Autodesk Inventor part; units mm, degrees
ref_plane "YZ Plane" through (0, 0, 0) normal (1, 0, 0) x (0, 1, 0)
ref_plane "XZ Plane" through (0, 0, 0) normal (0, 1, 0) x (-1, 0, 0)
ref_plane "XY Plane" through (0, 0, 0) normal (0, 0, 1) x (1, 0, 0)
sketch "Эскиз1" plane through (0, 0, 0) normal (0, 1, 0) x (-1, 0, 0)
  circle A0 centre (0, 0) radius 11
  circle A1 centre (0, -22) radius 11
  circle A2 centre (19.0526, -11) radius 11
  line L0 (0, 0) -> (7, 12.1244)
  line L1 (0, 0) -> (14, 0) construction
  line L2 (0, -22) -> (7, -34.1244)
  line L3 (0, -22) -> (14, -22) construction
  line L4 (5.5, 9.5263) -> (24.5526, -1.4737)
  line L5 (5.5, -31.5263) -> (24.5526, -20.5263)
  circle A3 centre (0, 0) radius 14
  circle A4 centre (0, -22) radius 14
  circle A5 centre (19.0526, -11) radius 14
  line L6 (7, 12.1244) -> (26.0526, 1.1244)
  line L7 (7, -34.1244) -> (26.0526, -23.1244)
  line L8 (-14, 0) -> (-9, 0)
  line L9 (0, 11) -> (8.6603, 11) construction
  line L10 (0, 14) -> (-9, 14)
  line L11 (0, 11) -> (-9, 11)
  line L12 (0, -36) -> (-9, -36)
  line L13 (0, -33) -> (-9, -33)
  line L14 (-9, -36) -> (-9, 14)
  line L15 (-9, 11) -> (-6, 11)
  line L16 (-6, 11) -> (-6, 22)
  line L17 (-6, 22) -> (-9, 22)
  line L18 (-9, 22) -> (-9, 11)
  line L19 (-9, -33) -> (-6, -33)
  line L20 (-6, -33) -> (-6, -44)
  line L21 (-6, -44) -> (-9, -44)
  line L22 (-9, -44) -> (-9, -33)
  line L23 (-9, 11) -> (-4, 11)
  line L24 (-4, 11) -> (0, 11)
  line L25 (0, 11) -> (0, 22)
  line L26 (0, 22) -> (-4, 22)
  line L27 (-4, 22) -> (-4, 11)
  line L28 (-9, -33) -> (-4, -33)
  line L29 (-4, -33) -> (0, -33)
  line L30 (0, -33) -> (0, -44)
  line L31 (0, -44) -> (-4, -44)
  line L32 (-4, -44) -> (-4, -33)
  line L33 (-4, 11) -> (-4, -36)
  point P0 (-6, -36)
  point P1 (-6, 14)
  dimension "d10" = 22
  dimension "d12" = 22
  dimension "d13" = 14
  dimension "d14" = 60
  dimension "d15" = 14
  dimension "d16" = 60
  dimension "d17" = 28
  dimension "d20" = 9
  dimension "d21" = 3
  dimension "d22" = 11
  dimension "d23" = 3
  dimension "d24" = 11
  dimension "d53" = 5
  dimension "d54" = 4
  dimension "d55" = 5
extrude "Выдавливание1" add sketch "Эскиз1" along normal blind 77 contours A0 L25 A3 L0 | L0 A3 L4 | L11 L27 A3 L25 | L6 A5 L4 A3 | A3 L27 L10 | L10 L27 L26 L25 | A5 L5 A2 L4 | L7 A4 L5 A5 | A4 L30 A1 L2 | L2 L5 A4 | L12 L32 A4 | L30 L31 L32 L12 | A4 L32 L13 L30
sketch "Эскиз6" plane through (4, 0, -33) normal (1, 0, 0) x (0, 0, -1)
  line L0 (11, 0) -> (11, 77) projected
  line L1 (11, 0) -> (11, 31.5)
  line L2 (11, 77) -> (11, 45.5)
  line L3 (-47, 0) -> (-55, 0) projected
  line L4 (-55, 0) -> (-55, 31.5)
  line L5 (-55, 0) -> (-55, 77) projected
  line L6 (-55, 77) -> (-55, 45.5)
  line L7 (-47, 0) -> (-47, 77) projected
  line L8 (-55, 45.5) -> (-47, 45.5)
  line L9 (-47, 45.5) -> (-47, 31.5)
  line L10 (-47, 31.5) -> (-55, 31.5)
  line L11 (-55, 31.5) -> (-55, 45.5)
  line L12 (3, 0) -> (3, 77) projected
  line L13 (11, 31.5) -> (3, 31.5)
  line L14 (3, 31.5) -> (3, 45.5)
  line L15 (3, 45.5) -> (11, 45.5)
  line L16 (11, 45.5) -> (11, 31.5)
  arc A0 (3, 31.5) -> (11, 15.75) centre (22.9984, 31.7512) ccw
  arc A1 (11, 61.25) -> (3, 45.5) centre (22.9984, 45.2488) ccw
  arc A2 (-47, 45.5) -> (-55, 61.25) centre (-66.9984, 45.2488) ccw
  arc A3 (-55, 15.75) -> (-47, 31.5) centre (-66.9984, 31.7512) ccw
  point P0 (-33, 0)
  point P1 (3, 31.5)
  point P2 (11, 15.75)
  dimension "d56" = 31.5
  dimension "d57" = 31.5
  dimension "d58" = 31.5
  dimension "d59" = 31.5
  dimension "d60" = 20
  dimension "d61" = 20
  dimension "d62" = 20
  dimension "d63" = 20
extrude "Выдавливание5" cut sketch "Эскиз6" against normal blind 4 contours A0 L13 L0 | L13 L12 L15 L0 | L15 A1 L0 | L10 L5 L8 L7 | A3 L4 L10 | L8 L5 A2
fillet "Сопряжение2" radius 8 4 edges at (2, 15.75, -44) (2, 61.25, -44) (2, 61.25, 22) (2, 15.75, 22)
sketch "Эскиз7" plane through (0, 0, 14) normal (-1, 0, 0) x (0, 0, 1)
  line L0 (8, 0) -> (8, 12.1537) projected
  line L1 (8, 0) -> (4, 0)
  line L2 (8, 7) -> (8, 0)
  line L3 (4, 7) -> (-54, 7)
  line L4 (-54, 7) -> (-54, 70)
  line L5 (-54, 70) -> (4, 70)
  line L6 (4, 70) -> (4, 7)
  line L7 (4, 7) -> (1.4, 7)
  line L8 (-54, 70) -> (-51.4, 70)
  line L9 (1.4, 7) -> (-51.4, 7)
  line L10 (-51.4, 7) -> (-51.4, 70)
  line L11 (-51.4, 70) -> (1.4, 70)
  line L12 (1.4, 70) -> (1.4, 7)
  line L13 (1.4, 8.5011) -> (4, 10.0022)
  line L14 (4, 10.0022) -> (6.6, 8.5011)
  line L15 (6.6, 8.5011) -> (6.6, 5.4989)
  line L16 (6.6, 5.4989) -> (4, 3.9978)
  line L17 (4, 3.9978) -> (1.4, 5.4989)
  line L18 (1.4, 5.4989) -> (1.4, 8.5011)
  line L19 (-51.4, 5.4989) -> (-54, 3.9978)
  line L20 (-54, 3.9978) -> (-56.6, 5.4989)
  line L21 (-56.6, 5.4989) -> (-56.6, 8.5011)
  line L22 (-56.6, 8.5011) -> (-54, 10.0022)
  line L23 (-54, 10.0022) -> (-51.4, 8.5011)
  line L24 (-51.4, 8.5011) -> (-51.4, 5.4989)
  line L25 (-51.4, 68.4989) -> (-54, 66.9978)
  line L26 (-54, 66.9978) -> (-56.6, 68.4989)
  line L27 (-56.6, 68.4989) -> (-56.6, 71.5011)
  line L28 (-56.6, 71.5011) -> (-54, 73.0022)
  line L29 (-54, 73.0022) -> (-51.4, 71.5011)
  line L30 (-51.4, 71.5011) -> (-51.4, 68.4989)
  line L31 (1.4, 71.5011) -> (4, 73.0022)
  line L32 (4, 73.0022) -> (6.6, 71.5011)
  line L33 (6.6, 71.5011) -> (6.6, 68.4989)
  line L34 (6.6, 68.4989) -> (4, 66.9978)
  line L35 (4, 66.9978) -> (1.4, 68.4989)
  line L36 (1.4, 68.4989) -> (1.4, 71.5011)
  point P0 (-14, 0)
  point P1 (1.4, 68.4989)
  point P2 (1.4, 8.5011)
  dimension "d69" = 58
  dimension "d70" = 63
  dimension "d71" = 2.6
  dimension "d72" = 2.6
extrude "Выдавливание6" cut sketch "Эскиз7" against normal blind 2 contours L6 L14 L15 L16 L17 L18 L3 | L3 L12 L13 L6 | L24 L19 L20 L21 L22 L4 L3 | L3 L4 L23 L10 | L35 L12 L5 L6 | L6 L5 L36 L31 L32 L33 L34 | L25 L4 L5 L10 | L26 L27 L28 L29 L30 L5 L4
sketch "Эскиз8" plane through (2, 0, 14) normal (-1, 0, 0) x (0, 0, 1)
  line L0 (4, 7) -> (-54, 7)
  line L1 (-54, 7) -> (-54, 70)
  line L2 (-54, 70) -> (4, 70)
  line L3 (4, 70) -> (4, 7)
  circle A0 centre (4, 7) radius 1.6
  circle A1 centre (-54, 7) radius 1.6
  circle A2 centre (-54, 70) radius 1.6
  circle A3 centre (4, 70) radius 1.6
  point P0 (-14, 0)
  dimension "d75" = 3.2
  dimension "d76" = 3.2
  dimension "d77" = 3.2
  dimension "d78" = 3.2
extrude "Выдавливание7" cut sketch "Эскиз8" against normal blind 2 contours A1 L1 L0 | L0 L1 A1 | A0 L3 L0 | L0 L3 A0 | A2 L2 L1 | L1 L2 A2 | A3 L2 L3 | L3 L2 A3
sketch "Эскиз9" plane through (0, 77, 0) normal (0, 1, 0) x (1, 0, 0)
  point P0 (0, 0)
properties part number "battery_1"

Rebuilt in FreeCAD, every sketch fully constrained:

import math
import FreeCAD as App
import Part
import Sketcher

V = App.Vector
Q = App.Units.Quantity


def edges_at(feature, points):
    """Names of the edges that pass closest to the given points."""
    edges = feature.Shape.Edges
    near = lambda p: min(range(len(edges)), key=lambda i: edges[i].distToShape(Part.Vertex(*p))[0])
    return sorted({f"Edge{near(p) + 1}" for p in points})

doc = App.newDocument("Part")
body = doc.addObject("PartDesign::Body", "Body")

# Sketch on XZ plane
sketch1 = body.newObject("Sketcher::SketchObject", "Sketch")
sketch1.AttachmentSupport = (doc.getObject("XZ_Plane"), [""])
sketch1.MapMode = "FlatFace"
sketch1.addGeometry([
    Part.ArcOfCircle(Part.Circle(V(0, 0, 0), V(0, 0, 1), 11), math.radians(90), math.radians(120)),  # 0
    Part.LineSegment(V(-5.5, 9.5, 0), V(-24.6, -1.5, 0)),  # 1
    Part.ArcOfCircle(Part.Circle(V(-19.1, -11, 0), V(0, 0, 1), 11), math.radians(120), math.radians(240)),  # 2
    Part.LineSegment(V(-24.6, -20.5, 0), V(-5.5, -31.5, 0)),  # 3
    Part.ArcOfCircle(Part.Circle(V(0, -22, 0), V(0, 0, 1), 11), math.radians(-120), math.radians(-90)),  # 4
    Part.LineSegment(V(0, -33, 0), V(4, -33, 0)),  # 5
    Part.LineSegment(V(4, -33, 0), V(4, -44, 0)),  # 6
    Part.LineSegment(V(4, -44, 0), V(0, -44, 0)),  # 7
    Part.LineSegment(V(0, -44, 0), V(0, -36, 0)),  # 8
    Part.ArcOfCircle(Part.Circle(V(0, -22, 0), V(0, 0, 1), 14), math.radians(-120), math.radians(-90)),  # 9
    Part.LineSegment(V(-7, -34.1, 0), V(-26.1, -23.1, 0)),  # 10
    Part.ArcOfCircle(Part.Circle(V(-19.1, -11, 0), V(0, 0, 1), 14), math.radians(120), math.radians(240)),  # 11
    Part.LineSegment(V(-26.1, 1.1, 0), V(-7, 12.1, 0)),  # 12
    Part.ArcOfCircle(Part.Circle(V(0, 0, 0), V(0, 0, 1), 14), math.radians(90), math.radians(120)),  # 13
    Part.LineSegment(V(0, 14, 0), V(0, 22, 0)),  # 14
    Part.LineSegment(V(0, 22, 0), V(4, 22, 0)),  # 15
    Part.LineSegment(V(4, 22, 0), V(4, 11, 0)),  # 16
    Part.LineSegment(V(4, 11, 0), V(0, 11, 0)),  # 17
], False)
sketch1.addConstraint([
    Sketcher.Constraint("Tangent", 0, 2, 1, 1),
    Sketcher.Constraint("Tangent", 1, 2, 2, 1),
    Sketcher.Constraint("Tangent", 2, 2, 3, 1),
    Sketcher.Constraint("Tangent", 3, 2, 4, 1),
    Sketcher.Constraint("Tangent", 4, 2, 5, 1),
    Sketcher.Constraint("Coincident", 5, 2, 6, 1),
    Sketcher.Constraint("Coincident", 6, 2, 7, 1),
    Sketcher.Constraint("Coincident", 7, 2, 8, 1),
    Sketcher.Constraint("Coincident", 8, 2, 9, 2),
    Sketcher.Constraint("Tangent", 9, 1, 10, 1),
    Sketcher.Constraint("Tangent", 10, 2, 11, 2),
    Sketcher.Constraint("Tangent", 11, 1, 12, 1),
    Sketcher.Constraint("Tangent", 12, 2, 13, 2),
    Sketcher.Constraint("Coincident", 13, 1, 14, 1),
    Sketcher.Constraint("Coincident", 14, 2, 15, 1),
    Sketcher.Constraint("Coincident", 15, 2, 16, 1),
    Sketcher.Constraint("Coincident", 16, 2, 17, 1),
    Sketcher.Constraint("Tangent", 17, 2, 0, 1),
    Sketcher.Constraint("Horizontal", 5),
    Sketcher.Constraint("Vertical", 6),
    Sketcher.Constraint("Horizontal", 7),
    Sketcher.Constraint("Vertical", 8),
    Sketcher.Constraint("Vertical", 14),
    Sketcher.Constraint("Horizontal", 15),
    Sketcher.Constraint("Vertical", 16),
    Sketcher.Constraint("Horizontal", 17),
    Sketcher.Constraint("Coincident", 0, 3, -1, 1),
    Sketcher.Constraint("Coincident", 13, 3, -1, 1),
    Sketcher.Constraint("Coincident", 9, 3, 4, 3),
    Sketcher.Constraint("Coincident", 11, 3, 2, 3),
    Sketcher.Constraint("Equal", 0, 2),
    Sketcher.Constraint("Equal", 2, 4),
    Sketcher.Constraint("Equal", 9, 11),
    Sketcher.Constraint("Equal", 11, 13),
    Sketcher.Constraint("PointOnObject", 4, 3, -2),
    Sketcher.Constraint("PointOnObject", 7, 2, -2),
    Sketcher.Constraint("PointOnObject", 13, 1, -2),
    Sketcher.Constraint("Vertical", 1, 2, 2, 2),
    Sketcher.Constraint("Vertical", 6, 2, 15, 2),
    Sketcher.Constraint("Equal", 8, 14),
    Sketcher.Constraint("Radius", 0, Q("11 mm")),
    Sketcher.Constraint("Radius", 9, Q("14 mm")),
    Sketcher.Constraint("DistanceX", 5, 1, 5, 2, Q("4 mm")),
    Sketcher.Constraint("DistanceY", 6, 2, 6, 1, Q("11 mm")),
    Sketcher.Constraint("Distance", 1, Q("22 mm")),
    Sketcher.Constraint("DistanceY", 2, 3, -1, 1, Q("11 mm")),
])
pad1 = body.newObject("PartDesign::Pad", "Pad")
pad1.Profile = sketch1
pad1.Length = 77
pad1.Reversed = True

# Sketch on YZ plane
sketch2 = body.newObject("Sketcher::SketchObject", "Sketch001")
sketch2.AttachmentSupport = (doc.getObject("YZ_Plane"), [""])
sketch2.MapMode = "FlatFace"
sketch2.AttachmentOffset = App.Placement(V(0, 0, 4), App.Rotation())
sketch2.addGeometry([
    Part.ArcOfCircle(Part.Circle(V(32, -56, 0), V(0, 0, 1), 20), math.radians(91), math.radians(143)),  # 0
    Part.LineSegment(V(16, -44, 0), V(61, -44, 0)),  # 1
    Part.ArcOfCircle(Part.Circle(V(45, -56, 0), V(0, 0, 1), 20), math.radians(37), math.radians(89)),  # 2
    Part.LineSegment(V(46, -36, 0), V(32, -36, 0)),  # 3
    Part.ArcOfCircle(Part.Circle(V(32, 34, 0), V(0, 0, 1), 20), math.radians(-143), math.radians(-91)),  # 4
    Part.LineSegment(V(32, 14, 0), V(46, 14, 0)),  # 5
    Part.ArcOfCircle(Part.Circle(V(45, 34, 0), V(0, 0, 1), 20), math.radians(-89), math.radians(-37)),  # 6
    Part.LineSegment(V(61, 22, 0), V(16, 22, 0)),  # 7
], False)
sketch2.addConstraint([
    Sketcher.Constraint("Coincident", 0, 2, 1, 1),
    Sketcher.Constraint("Coincident", 1, 2, 2, 1),
    Sketcher.Constraint("Coincident", 2, 2, 3, 1),
    Sketcher.Constraint("Coincident", 3, 2, 0, 1),
    Sketcher.Constraint("Coincident", 4, 2, 5, 1),
    Sketcher.Constraint("Coincident", 5, 2, 6, 1),
    Sketcher.Constraint("Coincident", 6, 2, 7, 1),
    Sketcher.Constraint("Coincident", 7, 2, 4, 1),
    Sketcher.Constraint("Horizontal", 1),
    Sketcher.Constraint("Horizontal", 3),
    Sketcher.Constraint("Horizontal", 5),
    Sketcher.Constraint("Horizontal", 7),
    Sketcher.Constraint("Equal", 0, 2),
    Sketcher.Constraint("Equal", 2, 4),
    Sketcher.Constraint("Equal", 4, 6),
    Sketcher.Constraint("Horizontal", 0, 3, 2, 3),
    Sketcher.Constraint("Horizontal", 4, 3, 6, 3),
    Sketcher.Constraint("Vertical", 0, 3, 4, 3),
    Sketcher.Constraint("Vertical", 2, 3, 6, 3),
    Sketcher.Constraint("Vertical", 3, 2, 4, 2),
    Sketcher.Constraint("Vertical", 1, 2, 6, 2),
    Sketcher.Constraint("Radius", 0, Q("20 mm")),
    Sketcher.Constraint("DistanceX", -1, 1, 3, 2, Q("31.5 mm")),
    Sketcher.Constraint("DistanceX", 3, 2, 3, 1, Q("14 mm")),
    Sketcher.Constraint("DistanceX", 1, 1, 1, 2, Q("45.5 mm")),
    Sketcher.Constraint("DistanceY", 0, 2, -1, 1, Q("44 mm")),
    Sketcher.Constraint("DistanceY", 2, 2, -1, 1, Q("36 mm")),
    Sketcher.Constraint("DistanceY", -1, 1, 4, 2, Q("14 mm")),
])
pocket1 = body.newObject("PartDesign::Pocket", "Pocket")
pocket1.Profile = sketch2
pocket1.Length = 4
doc.recompute()

fillet = body.newObject("PartDesign::Fillet", "Fillet")
fillet.Base = (pocket1, edges_at(pocket1, [
    (2, 15.75, -44),
    (2, 61.25, -44),
    (2, 61.25, 22),
    (2, 15.75, 22),
]))
fillet.Radius = 8

# Sketch on YZ plane
sketch3 = body.newObject("Sketcher::SketchObject", "Sketch002")
sketch3.AttachmentSupport = (doc.getObject("YZ_Plane"), [""])
sketch3.MapMode = "FlatFace"
sketch3.addGeometry([
    Part.LineSegment(V(8.5, 20.6, 0), V(10, 18, 0)),  # 0
    Part.LineSegment(V(10, 18, 0), V(8.5, 15.4, 0)),  # 1
    Part.LineSegment(V(8.5, 15.4, 0), V(5.5, 15.4, 0)),  # 2
    Part.LineSegment(V(5.5, 15.4, 0), V(4, 18, 0)),  # 3
    Part.LineSegment(V(4, 18, 0), V(5.5, 20.6, 0)),  # 4
    Part.LineSegment(V(5.5, 20.6, 0), V(8.5, 20.6, 0)),  # 5
    Part.LineSegment(V(5.5, -37.4, 0), V(8.5, -37.4, 0)),  # 6
    Part.LineSegment(V(8.5, -37.4, 0), V(10, -40, 0)),  # 7
    Part.LineSegment(V(10, -40, 0), V(8.5, -42.6, 0)),  # 8
    Part.LineSegment(V(8.5, -42.6, 0), V(5.5, -42.6, 0)),  # 9
    Part.LineSegment(V(5.5, -42.6, 0), V(4, -40, 0)),  # 10
    Part.LineSegment(V(4, -40, 0), V(5.5, -37.4, 0)),  # 11
    Part.LineSegment(V(68.5, 15.4, 0), V(67, 18, 0)),  # 12
    Part.LineSegment(V(67, 18, 0), V(68.5, 20.6, 0)),  # 13
    Part.LineSegment(V(68.5, 20.6, 0), V(71.5, 20.6, 0)),  # 14
    Part.LineSegment(V(71.5, 20.6, 0), V(73, 18, 0)),  # 15
    Part.LineSegment(V(73, 18, 0), V(71.5, 15.4, 0)),  # 16
    Part.LineSegment(V(71.5, 15.4, 0), V(68.5, 15.4, 0)),  # 17
    Part.LineSegment(V(67, -40, 0), V(68.5, -37.4, 0)),  # 18
    Part.LineSegment(V(68.5, -37.4, 0), V(71.5, -37.4, 0)),  # 19
    Part.LineSegment(V(71.5, -37.4, 0), V(73, -40, 0)),  # 20
    Part.LineSegment(V(73, -40, 0), V(71.5, -42.6, 0)),  # 21
    Part.LineSegment(V(71.5, -42.6, 0), V(68.5, -42.6, 0)),  # 22
    Part.LineSegment(V(68.5, -42.6, 0), V(67, -40, 0)),  # 23
], False)
sketch3.addConstraint([
    Sketcher.Constraint("Coincident", 0, 2, 1, 1),
    Sketcher.Constraint("Coincident", 1, 2, 2, 1),
    Sketcher.Constraint("Coincident", 2, 2, 3, 1),
    Sketcher.Constraint("Coincident", 3, 2, 4, 1),
    Sketcher.Constraint("Coincident", 4, 2, 5, 1),
    Sketcher.Constraint("Coincident", 5, 2, 0, 1),
    Sketcher.Constraint("Coincident", 6, 2, 7, 1),
    Sketcher.Constraint("Coincident", 7, 2, 8, 1),
    Sketcher.Constraint("Coincident", 8, 2, 9, 1),
    Sketcher.Constraint("Coincident", 9, 2, 10, 1),
    Sketcher.Constraint("Coincident", 10, 2, 11, 1),
    Sketcher.Constraint("Coincident", 11, 2, 6, 1),
    Sketcher.Constraint("Coincident", 12, 2, 13, 1),
    Sketcher.Constraint("Coincident", 13, 2, 14, 1),
    Sketcher.Constraint("Coincident", 14, 2, 15, 1),
    Sketcher.Constraint("Coincident", 15, 2, 16, 1),
    Sketcher.Constraint("Coincident", 16, 2, 17, 1),
    Sketcher.Constraint("Coincident", 17, 2, 12, 1),
    Sketcher.Constraint("Coincident", 18, 2, 19, 1),
    Sketcher.Constraint("Coincident", 19, 2, 20, 1),
    Sketcher.Constraint("Coincident", 20, 2, 21, 1),
    Sketcher.Constraint("Coincident", 21, 2, 22, 1),
    Sketcher.Constraint("Coincident", 22, 2, 23, 1),
    Sketcher.Constraint("Coincident", 23, 2, 18, 1),
    Sketcher.Constraint("Horizontal", 2),
    Sketcher.Constraint("Horizontal", 5),
    Sketcher.Constraint("Horizontal", 6),
    Sketcher.Constraint("Horizontal", 9),
    Sketcher.Constraint("Horizontal", 14),
    Sketcher.Constraint("Horizontal", 17),
    Sketcher.Constraint("Horizontal", 19),
    Sketcher.Constraint("Horizontal", 22),
    Sketcher.Constraint("Parallel", 0, 3),
    Sketcher.Constraint("Parallel", 1, 4),
    Sketcher.Constraint("Parallel", 3, 7),
    Sketcher.Constraint("Parallel", 4, 8),
    Sketcher.Constraint("Parallel", 7, 10),
    Sketcher.Constraint("Parallel", 8, 11),
    Sketcher.Constraint("Parallel", 10, 12),
    Sketcher.Constraint("Parallel", 11, 13),
    Sketcher.Constraint("Parallel", 12, 15),
    Sketcher.Constraint("Parallel", 13, 16),
    Sketcher.Constraint("Parallel", 16, 18),
    Sketcher.Constraint("Parallel", 15, 20),
    Sketcher.Constraint("Parallel", 18, 21),
    Sketcher.Constraint("Parallel", 20, 23),
    Sketcher.Constraint("Horizontal", 0, 2, 3, 2),
    Sketcher.Constraint("Horizontal", 7, 2, 10, 2),
    Sketcher.Constraint("Horizontal", 3, 2, 12, 2),
    Sketcher.Constraint("Horizontal", 5, 2, 13, 2),
    Sketcher.Constraint("Horizontal", 12, 2, 15, 2),
    Sketcher.Constraint("Horizontal", 2, 2, 16, 2),
    Sketcher.Constraint("Horizontal", 11, 2, 18, 2),
    Sketcher.Constraint("Horizontal", 10, 2, 20, 2),
    Sketcher.Constraint("Horizontal", 9, 2, 21, 2),
    Sketcher.Constraint("Horizontal", 20, 2, 23, 2),
    Sketcher.Constraint("Vertical", 2, 2, 4, 2),
    Sketcher.Constraint("Vertical", 1, 2, 5, 2),
    Sketcher.Constraint("Vertical", 5, 2, 6, 2),
    Sketcher.Constraint("Vertical", 0, 2, 7, 2),
    Sketcher.Constraint("Vertical", 6, 2, 8, 2),
    Sketcher.Constraint("Vertical", 4, 2, 9, 2),
    Sketcher.Constraint("Vertical", 17, 2, 18, 2),
    Sketcher.Constraint("Vertical", 16, 2, 19, 2),
    Sketcher.Constraint("Equal", 9, 14),
    Sketcher.Constraint("DistanceY", 6, 2, 5, 2, Q("58 mm")),
    Sketcher.Constraint("DistanceX", 4, 2, 13, 2, Q("63 mm")),
    Sketcher.Constraint("DistanceY", 1, 2, 0, 2, Q("2.6 mm")),
    Sketcher.Constraint("Angle", 0, Q("-60.0002 deg")),
    Sketcher.Constraint("DistanceY", -1, 1, 0, 2, Q("18 mm")),
    Sketcher.Constraint("DistanceX", 2, 2, 2, 1, Q("3.0022 mm")),
    Sketcher.Constraint("DistanceX", -1, 1, 1, 2, Q("8.501 mm")),
])
pocket2 = body.newObject("PartDesign::Pocket", "Pocket001")
pocket2.Profile = sketch3
pocket2.Length = 2
pocket2.Reversed = True

# Sketch on YZ plane
sketch4 = body.newObject("Sketcher::SketchObject", "Sketch003")
sketch4.AttachmentSupport = (doc.getObject("YZ_Plane"), [""])
sketch4.MapMode = "FlatFace"
sketch4.AttachmentOffset = App.Placement(V(0, 0, 2), App.Rotation())
sketch4.addGeometry([
    Part.Circle(V(7, -40, 0), V(0, 0, 1), 1.6),
    Part.Circle(V(7, 18, 0), V(0, 0, 1), 1.6),
    Part.Circle(V(70, -40, 0), V(0, 0, 1), 1.6),
    Part.Circle(V(70, 18, 0), V(0, 0, 1), 1.6),
], False)
sketch4.addConstraint([
    Sketcher.Constraint("Equal", 0, 1),
    Sketcher.Constraint("Equal", 1, 2),
    Sketcher.Constraint("Equal", 2, 3),
    Sketcher.Constraint("Horizontal", 0, 3, 2, 3),
    Sketcher.Constraint("Horizontal", 1, 3, 3, 3),
    Sketcher.Constraint("Vertical", 0, 3, 1, 3),
    Sketcher.Constraint("Vertical", 2, 3, 3, 3),
    Sketcher.Constraint("Diameter", 0, Q("3.2 mm")),
    Sketcher.Constraint("DistanceX", -1, 1, 0, 3, Q("7 mm")),
    Sketcher.Constraint("DistanceY", 0, 3, -1, 1, Q("40 mm")),
    Sketcher.Constraint("DistanceY", -1, 1, 1, 3, Q("18 mm")),
    Sketcher.Constraint("DistanceX", -1, 1, 2, 3, Q("70 mm")),
])
pocket3 = body.newObject("PartDesign::Pocket", "Pocket002")
pocket3.Profile = sketch4
pocket3.Length = 2
pocket3.Reversed = True

doc.recompute()
